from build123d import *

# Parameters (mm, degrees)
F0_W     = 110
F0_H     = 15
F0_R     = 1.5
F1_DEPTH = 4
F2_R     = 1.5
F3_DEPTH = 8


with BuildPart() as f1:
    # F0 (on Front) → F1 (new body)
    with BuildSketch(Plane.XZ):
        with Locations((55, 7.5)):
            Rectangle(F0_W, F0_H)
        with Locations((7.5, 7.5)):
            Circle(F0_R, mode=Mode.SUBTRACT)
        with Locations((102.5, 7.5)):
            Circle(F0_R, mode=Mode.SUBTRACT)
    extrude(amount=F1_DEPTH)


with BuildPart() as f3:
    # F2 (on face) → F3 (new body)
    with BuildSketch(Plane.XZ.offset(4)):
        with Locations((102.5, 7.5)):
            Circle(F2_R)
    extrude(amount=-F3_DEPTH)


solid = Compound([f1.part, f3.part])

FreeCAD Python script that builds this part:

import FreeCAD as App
import Part
import Sketcher
from FreeCAD import Vector

doc = App.newDocument("Part")
params = doc.addObject("Spreadsheet::Sheet", "Params")
for row, (alias, value) in enumerate([
    ("sketch1_diameter", "3 mm"),
    ("sketch1_width", "110 mm"),
    ("sketch1_height", "15 mm"),
    ("pad1_length", "4 mm"),
    ("sketch2_diameter", "3 mm"),
    ("pad2_length", "8 mm"),
], start=1):
    params.set(f"A{row}", alias)
    params.set(f"B{row}", "=" + value)
    params.setAlias(f"B{row}", alias)

body = doc.addObject("PartDesign::Body", "Body")

# Sketch on XZ plane
sketch1 = body.newObject("Sketcher::SketchObject", "Sketch")
sketch1.AttachmentSupport = (doc.getObject("XZ_Plane"), [""])
sketch1.MapMode = "FlatFace"
sketch1.addGeometry(Part.LineSegment(Vector(0, 15, 0), Vector(0, 0, 0)), False)
sketch1.addGeometry(Part.LineSegment(Vector(0, 0, 0), Vector(110, 0, 0)), False)
sketch1.addGeometry(Part.LineSegment(Vector(110, 0, 0), Vector(110, 15, 0)), False)
sketch1.addGeometry(Part.LineSegment(Vector(110, 15, 0), Vector(0, 15, 0)), False)
sketch1.addGeometry(Part.Circle(Vector(7.5, 7.5, 0), Vector(0, 0, 1), 1.5), False)
sketch1.addGeometry(Part.Circle(Vector(102.5, 7.5, 0), Vector(0, 0, 1), 1.5), False)
sketch1.addConstraint(Sketcher.Constraint("Coincident", 0, 2, 1, 1))
sketch1.addConstraint(Sketcher.Constraint("Coincident", 1, 2, 2, 1))
sketch1.addConstraint(Sketcher.Constraint("Coincident", 2, 2, 3, 1))
sketch1.addConstraint(Sketcher.Constraint("Coincident", 3, 2, 0, 1))
sketch1.addConstraint(Sketcher.Constraint("Vertical", 0))
sketch1.addConstraint(Sketcher.Constraint("Horizontal", 1))
sketch1.addConstraint(Sketcher.Constraint("Vertical", 2))
sketch1.addConstraint(Sketcher.Constraint("Horizontal", 3))
sketch1.addConstraint(Sketcher.Constraint("Coincident", 0, 2, -1, 1))
sketch1.addConstraint(Sketcher.Constraint("Equal", 4, 5))
sketch1.addConstraint(Sketcher.Constraint("Horizontal", 4, 3, 5, 3))
sketch1.addConstraint(Sketcher.Constraint("Diameter", 4, 3.0))
sketch1.addConstraint(Sketcher.Constraint("DistanceX", 1, 1, 1, 2, 110.0))
sketch1.addConstraint(Sketcher.Constraint("DistanceY", 0, 2, 0, 1, 15.0))
sketch1.addConstraint(Sketcher.Constraint("DistanceX", 4, 3, 5, 3, 95.0))
sketch1.addConstraint(Sketcher.Constraint("DistanceX", -1, 1, 4, 3, 7.5))
sketch1.addConstraint(Sketcher.Constraint("DistanceY", -1, 1, 4, 3, 7.5))
sketch1.setExpression("Constraints[11]", "Params.sketch1_diameter")
sketch1.setExpression("Constraints[12]", "Params.sketch1_width")
sketch1.setExpression("Constraints[13]", "Params.sketch1_height")
pad1 = body.newObject("PartDesign::Pad", "Pad")
pad1.Profile = sketch1
pad1.setExpression("Length", "Params.pad1_length")
body2 = doc.addObject("PartDesign::Body", "Body001")

# Sketch on XZ plane
sketch2 = body2.newObject("Sketcher::SketchObject", "Sketch001")
sketch2.AttachmentSupport = (doc.getObject("XZ_Plane001"), [""])
sketch2.MapMode = "FlatFace"
sketch2.AttachmentOffset = App.Placement(Vector(0, 0, 4), App.Rotation())
sketch2.addGeometry(Part.Circle(Vector(102.5, 7.5, 0), Vector(0, 0, 1), 1.5), False)
sketch2.addConstraint(Sketcher.Constraint("Diameter", 0, 3.0))
sketch2.addConstraint(Sketcher.Constraint("DistanceX", -1, 1, 0, 3, 102.5))
sketch2.addConstraint(Sketcher.Constraint("DistanceY", -1, 1, 0, 3, 7.5))
sketch2.setExpression("Constraints[0]", "Params.sketch2_diameter")
pad2 = body2.newObject("PartDesign::Pad", "Pad001")
pad2.Profile = sketch2
pad2.setExpression("Length", "Params.pad2_length")
pad2.Reversed = True

doc.recompute()
